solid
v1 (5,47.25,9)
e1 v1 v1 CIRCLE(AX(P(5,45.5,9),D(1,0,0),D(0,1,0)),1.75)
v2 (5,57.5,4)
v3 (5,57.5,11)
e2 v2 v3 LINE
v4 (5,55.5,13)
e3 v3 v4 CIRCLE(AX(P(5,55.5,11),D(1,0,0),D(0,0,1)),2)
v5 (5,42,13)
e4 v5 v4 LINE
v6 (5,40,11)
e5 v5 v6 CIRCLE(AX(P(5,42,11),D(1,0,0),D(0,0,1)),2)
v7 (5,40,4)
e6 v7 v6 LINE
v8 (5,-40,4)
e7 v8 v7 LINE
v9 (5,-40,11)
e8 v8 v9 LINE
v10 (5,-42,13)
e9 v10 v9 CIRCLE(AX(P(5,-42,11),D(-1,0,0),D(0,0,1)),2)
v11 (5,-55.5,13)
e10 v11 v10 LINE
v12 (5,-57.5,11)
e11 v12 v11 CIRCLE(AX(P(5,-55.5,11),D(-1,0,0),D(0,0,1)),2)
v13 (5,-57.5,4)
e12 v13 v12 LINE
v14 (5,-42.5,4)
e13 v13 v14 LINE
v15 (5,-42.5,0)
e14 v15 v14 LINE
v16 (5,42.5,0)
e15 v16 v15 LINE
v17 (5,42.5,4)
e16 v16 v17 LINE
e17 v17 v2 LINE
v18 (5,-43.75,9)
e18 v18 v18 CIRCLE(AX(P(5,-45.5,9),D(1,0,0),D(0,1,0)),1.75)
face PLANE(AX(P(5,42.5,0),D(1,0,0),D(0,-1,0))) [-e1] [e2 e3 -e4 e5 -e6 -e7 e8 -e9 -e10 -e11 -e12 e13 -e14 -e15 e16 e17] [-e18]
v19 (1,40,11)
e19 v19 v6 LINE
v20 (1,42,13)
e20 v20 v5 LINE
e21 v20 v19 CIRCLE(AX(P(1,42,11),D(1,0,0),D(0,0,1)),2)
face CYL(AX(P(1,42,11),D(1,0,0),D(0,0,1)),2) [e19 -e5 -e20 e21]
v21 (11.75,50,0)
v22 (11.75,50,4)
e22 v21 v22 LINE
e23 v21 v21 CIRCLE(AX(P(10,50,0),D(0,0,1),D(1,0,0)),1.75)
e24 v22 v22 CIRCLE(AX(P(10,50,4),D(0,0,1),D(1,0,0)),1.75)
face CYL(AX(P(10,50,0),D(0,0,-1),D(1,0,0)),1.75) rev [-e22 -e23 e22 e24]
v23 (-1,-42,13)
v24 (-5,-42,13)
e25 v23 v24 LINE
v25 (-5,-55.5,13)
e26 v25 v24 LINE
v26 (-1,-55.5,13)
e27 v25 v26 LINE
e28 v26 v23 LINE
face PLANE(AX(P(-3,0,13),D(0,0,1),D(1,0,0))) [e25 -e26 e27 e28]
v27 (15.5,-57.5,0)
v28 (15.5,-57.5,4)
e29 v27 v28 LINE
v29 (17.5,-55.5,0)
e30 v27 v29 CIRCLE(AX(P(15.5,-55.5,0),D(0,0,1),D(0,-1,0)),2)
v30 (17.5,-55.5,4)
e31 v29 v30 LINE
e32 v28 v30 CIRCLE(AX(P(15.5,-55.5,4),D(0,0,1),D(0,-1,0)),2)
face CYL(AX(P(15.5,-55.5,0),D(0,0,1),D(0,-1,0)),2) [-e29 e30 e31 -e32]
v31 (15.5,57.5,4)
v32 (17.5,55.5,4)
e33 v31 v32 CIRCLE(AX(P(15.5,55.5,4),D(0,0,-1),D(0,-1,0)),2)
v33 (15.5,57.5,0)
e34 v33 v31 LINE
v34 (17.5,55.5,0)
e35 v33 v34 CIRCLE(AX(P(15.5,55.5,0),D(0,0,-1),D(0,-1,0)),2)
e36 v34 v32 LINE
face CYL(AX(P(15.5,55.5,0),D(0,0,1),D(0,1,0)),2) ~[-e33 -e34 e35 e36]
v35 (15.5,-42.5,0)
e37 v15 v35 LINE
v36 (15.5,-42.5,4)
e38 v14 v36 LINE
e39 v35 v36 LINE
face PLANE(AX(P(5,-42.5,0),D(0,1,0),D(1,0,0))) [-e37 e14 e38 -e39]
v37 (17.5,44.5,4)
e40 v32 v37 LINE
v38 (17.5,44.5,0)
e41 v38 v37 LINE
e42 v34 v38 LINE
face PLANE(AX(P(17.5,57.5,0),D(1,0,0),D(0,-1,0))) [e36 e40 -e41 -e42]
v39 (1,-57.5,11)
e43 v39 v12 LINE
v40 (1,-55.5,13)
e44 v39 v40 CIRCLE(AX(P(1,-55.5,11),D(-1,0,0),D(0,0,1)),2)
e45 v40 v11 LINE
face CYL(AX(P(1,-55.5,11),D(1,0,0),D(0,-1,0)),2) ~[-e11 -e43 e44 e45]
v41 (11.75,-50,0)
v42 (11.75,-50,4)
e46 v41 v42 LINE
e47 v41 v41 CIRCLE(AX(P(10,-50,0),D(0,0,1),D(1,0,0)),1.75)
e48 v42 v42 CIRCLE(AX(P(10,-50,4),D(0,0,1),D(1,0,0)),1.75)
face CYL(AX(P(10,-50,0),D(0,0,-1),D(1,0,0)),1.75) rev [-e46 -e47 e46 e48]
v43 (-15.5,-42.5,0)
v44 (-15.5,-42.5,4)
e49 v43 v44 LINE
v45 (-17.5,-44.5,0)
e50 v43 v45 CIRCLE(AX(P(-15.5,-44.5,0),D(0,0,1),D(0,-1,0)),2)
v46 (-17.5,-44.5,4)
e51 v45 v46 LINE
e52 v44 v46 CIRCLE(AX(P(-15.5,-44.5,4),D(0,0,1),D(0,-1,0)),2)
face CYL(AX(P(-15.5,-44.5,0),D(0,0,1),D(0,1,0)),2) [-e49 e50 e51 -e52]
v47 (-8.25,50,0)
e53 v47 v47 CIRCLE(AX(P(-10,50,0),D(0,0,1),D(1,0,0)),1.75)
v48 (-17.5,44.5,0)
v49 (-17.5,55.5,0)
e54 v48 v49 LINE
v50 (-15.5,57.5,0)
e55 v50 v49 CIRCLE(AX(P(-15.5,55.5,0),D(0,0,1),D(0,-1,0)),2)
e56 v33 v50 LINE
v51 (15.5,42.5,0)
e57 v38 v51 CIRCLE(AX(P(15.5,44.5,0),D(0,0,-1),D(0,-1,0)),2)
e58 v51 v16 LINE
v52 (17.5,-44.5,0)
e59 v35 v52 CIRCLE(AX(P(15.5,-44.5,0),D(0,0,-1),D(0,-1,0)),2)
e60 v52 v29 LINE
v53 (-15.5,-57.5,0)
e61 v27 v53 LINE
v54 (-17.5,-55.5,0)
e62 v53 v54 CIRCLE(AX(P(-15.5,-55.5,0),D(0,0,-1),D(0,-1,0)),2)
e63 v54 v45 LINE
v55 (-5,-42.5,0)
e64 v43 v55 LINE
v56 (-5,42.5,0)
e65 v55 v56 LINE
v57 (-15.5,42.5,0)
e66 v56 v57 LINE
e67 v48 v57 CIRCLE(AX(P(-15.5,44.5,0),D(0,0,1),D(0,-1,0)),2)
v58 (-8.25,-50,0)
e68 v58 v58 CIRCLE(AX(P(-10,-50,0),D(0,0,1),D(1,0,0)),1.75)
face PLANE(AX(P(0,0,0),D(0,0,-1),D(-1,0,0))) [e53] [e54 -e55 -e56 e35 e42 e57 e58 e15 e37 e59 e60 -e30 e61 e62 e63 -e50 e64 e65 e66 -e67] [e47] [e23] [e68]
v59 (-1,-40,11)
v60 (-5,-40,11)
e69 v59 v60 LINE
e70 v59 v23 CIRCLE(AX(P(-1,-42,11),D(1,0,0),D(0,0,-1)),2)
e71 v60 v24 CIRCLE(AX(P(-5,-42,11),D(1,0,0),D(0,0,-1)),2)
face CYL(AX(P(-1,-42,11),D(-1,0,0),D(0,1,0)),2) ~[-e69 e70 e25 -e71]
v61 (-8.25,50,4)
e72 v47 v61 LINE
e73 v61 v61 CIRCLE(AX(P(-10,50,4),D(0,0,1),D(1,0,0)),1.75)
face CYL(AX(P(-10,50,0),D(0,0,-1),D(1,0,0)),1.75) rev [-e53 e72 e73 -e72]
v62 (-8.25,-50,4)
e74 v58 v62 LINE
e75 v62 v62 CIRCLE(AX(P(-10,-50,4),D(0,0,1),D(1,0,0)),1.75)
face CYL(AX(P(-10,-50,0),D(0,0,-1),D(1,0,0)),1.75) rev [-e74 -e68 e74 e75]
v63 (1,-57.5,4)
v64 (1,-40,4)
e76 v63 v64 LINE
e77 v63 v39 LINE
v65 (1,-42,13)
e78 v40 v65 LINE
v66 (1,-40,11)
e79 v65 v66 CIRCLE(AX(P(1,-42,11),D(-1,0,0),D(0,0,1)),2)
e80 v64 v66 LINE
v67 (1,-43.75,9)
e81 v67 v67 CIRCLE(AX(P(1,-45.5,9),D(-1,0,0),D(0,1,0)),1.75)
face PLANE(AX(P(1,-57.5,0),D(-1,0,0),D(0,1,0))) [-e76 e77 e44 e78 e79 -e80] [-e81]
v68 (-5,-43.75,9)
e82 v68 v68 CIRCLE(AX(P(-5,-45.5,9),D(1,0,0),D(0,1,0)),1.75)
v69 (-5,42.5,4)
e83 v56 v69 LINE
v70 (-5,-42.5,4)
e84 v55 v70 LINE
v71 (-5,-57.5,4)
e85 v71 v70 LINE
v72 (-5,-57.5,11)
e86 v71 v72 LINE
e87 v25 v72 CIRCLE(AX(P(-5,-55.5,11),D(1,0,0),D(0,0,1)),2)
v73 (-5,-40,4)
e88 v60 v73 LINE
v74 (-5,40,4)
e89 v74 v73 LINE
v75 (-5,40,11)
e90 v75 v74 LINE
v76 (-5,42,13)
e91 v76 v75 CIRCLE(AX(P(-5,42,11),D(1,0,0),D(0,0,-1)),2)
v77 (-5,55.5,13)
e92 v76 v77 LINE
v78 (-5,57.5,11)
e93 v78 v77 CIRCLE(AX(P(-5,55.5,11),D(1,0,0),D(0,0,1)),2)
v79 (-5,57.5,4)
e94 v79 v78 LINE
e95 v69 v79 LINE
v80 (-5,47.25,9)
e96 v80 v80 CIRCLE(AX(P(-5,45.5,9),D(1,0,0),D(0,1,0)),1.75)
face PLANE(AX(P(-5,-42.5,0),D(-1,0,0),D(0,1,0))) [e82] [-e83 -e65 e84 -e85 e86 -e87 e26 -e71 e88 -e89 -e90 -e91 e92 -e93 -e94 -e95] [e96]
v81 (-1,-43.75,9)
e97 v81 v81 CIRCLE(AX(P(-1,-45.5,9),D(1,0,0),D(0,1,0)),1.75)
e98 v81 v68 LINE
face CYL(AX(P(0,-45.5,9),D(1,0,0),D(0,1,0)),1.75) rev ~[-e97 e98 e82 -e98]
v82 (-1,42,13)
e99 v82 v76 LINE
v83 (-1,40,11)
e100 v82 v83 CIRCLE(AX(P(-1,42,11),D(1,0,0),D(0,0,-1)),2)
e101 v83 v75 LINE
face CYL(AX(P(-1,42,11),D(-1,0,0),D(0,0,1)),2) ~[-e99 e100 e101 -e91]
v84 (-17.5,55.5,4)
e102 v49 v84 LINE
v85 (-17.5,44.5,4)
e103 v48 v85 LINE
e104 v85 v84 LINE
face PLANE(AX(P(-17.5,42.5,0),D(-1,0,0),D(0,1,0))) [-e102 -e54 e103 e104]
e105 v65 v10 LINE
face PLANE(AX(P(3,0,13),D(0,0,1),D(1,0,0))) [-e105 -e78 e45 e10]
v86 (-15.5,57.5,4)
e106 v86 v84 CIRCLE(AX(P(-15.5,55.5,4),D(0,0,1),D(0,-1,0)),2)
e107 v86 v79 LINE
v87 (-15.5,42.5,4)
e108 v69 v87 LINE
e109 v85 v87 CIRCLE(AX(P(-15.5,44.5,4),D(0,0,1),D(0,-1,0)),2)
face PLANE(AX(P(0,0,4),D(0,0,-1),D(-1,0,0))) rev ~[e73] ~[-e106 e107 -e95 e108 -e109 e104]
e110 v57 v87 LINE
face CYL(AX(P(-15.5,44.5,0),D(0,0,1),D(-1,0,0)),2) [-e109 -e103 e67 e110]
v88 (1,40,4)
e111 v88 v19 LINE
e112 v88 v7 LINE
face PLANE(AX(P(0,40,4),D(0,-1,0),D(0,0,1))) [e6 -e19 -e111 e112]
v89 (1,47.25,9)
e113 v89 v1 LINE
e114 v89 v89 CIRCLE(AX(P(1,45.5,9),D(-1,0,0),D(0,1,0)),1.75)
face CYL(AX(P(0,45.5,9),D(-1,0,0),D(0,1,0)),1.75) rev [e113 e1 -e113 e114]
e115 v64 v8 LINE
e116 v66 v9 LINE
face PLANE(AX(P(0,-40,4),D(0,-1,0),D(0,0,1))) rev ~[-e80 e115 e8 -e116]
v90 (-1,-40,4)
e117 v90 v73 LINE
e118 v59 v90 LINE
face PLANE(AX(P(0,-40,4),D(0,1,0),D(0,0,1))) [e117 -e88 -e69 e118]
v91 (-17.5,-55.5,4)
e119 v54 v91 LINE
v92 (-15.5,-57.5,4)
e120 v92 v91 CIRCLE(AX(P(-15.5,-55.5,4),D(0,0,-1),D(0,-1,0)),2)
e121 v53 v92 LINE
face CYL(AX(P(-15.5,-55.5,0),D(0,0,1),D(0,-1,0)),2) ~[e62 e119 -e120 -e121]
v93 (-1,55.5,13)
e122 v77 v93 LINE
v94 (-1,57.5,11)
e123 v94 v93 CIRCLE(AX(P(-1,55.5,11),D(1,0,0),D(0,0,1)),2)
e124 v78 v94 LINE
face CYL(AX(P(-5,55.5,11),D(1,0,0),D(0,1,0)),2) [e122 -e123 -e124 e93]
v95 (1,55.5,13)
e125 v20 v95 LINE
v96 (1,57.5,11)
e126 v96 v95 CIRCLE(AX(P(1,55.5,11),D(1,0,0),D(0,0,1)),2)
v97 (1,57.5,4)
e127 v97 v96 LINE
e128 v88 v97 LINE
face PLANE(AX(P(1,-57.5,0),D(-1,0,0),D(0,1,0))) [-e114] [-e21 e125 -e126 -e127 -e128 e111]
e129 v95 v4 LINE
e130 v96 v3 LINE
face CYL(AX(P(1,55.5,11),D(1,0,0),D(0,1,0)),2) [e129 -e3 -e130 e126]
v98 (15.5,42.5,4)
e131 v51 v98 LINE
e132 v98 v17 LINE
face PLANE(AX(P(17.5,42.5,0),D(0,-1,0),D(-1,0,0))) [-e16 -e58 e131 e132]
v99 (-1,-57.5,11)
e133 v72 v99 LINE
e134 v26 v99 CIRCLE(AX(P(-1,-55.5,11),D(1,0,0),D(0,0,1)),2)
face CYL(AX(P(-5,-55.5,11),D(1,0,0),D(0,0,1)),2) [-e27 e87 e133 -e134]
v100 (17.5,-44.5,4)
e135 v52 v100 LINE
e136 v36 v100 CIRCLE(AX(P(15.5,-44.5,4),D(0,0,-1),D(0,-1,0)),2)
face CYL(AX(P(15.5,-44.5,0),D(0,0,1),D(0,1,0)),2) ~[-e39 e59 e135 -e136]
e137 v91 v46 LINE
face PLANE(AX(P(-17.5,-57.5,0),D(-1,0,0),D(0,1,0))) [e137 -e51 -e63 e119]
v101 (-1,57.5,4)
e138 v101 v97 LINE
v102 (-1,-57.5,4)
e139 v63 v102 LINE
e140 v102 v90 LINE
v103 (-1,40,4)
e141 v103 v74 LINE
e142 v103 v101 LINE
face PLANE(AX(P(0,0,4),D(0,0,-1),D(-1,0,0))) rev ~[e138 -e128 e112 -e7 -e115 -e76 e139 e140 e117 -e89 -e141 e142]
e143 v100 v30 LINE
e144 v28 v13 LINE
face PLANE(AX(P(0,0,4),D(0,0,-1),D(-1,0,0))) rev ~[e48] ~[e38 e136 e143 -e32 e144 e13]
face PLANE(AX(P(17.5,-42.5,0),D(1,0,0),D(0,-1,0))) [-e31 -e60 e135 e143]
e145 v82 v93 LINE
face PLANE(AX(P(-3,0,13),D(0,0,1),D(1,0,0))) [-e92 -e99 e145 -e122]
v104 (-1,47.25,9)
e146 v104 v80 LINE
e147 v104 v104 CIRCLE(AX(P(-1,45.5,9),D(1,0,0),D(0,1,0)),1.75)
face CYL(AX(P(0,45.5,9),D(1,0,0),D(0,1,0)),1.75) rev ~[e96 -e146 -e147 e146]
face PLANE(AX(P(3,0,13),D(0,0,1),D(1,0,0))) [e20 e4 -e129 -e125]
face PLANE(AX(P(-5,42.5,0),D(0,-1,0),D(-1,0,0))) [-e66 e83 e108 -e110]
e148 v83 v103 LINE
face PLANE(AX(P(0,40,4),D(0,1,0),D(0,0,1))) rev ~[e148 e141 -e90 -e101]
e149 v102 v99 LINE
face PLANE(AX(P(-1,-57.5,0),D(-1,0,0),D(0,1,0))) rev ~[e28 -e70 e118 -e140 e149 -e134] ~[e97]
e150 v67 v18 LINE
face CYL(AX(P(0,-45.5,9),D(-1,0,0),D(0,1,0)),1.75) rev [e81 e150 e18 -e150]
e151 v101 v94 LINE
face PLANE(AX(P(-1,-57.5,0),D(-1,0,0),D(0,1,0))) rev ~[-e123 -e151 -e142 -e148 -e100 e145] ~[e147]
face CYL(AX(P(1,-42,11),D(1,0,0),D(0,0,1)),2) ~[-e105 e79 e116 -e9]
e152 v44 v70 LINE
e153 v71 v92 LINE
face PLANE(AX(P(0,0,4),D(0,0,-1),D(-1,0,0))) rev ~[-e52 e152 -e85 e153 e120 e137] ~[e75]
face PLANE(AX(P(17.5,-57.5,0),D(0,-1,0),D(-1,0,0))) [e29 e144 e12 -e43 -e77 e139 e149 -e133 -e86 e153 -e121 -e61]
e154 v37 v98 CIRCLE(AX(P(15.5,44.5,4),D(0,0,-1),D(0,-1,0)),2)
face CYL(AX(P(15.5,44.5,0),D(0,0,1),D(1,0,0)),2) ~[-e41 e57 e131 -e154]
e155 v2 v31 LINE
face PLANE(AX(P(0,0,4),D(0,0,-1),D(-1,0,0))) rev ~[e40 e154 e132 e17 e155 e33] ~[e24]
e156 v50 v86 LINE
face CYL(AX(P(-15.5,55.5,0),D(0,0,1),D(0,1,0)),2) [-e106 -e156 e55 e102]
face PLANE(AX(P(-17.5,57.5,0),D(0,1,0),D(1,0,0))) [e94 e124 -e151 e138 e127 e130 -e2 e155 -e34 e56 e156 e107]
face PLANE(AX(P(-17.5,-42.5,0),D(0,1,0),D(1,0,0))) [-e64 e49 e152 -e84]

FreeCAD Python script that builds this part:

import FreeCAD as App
import Part
import Sketcher
from FreeCAD import Vector
Q = App.Units.Quantity


def edges_at(feature, points):
    """Names of the edges that pass closest to the given points."""
    edges = feature.Shape.Edges
    near = lambda p: min(range(len(edges)), key=lambda i: edges[i].distToShape(Part.Vertex(*p))[0])
    return sorted({f"Edge{near(p) + 1}" for p in points})

doc = App.newDocument("Part")
params = doc.addObject("Spreadsheet::Sheet", "Params")
for row, (alias, value) in enumerate([
    ("sketch1_diameter", "3.5 mm"),
    ("sketch1_width", "35 mm"),
    ("sketch1_height", "15 mm"),
    ("sketch1_height2", "85 mm"),
    ("sketch1_width2", "12.5 mm"),
    ("pad1_length", "4 mm"),
    ("sketch2_width", "4 mm"),
    ("sketch2_height", "115 mm"),
    ("pad2_length", "13 mm"),
    ("sketch3_diameter", "3.5 mm"),
    ("sketch3_width", "80 mm"),
    ("sketch3_height", "9 mm"),
    ("fillet_radius", "2 mm"),
], start=1):
    params.set(f"A{row}", alias)
    params.set(f"B{row}", "=" + value)
    params.setAlias(f"B{row}", alias)

body = doc.addObject("PartDesign::Body", "Body")

sketch1 = doc.addObject("Sketcher::SketchObject", "Sketch")
body.addObject(sketch1)
sketch1.AttachmentSupport = (doc.XY_Plane, [""])
sketch1.MapMode = "FlatFace"
sketch1.addGeometry(Part.LineSegment(Vector(17.5, 57.5, 0), Vector(-17.5, 57.5, 0)), False)
sketch1.addGeometry(Part.LineSegment(Vector(-17.5, 57.5, 0), Vector(-17.5, 42.5, 0)), False)
sketch1.addGeometry(Part.LineSegment(Vector(-17.5, 42.5, 0), Vector(-5, 42.5, 0)), False)
sketch1.addGeometry(Part.LineSegment(Vector(-5, 42.5, 0), Vector(-5, -42.5, 0)), False)
sketch1.addGeometry(Part.LineSegment(Vector(-5, -42.5, 0), Vector(-17.5, -42.5, 0)), False)
sketch1.addGeometry(Part.LineSegment(Vector(-17.5, -42.5, 0), Vector(-17.5, -57.5, 0)), False)
sketch1.addGeometry(Part.LineSegment(Vector(-17.5, -57.5, 0), Vector(17.5, -57.5, 0)), False)
sketch1.addGeometry(Part.LineSegment(Vector(17.5, -57.5, 0), Vector(17.5, -42.5, 0)), False)
sketch1.addGeometry(Part.LineSegment(Vector(17.5, -42.5, 0), Vector(5, -42.5, 0)), False)
sketch1.addGeometry(Part.LineSegment(Vector(5, -42.5, 0), Vector(5, 42.5, 0)), False)
sketch1.addGeometry(Part.LineSegment(Vector(5, 42.5, 0), Vector(17.5, 42.5, 0)), False)
sketch1.addGeometry(Part.LineSegment(Vector(17.5, 42.5, 0), Vector(17.5, 57.5, 0)), False)
sketch1.addGeometry(Part.Circle(Vector(10, -50, 0), Vector(0, 0, 1), 1.8), False)
sketch1.addGeometry(Part.Circle(Vector(-10, -50, 0), Vector(0, 0, 1), 1.8), False)
sketch1.addGeometry(Part.Circle(Vector(10, 50, 0), Vector(0, 0, 1), 1.8), False)
sketch1.addGeometry(Part.Circle(Vector(-10, 50, 0), Vector(0, 0, 1), 1.8), False)
sketch1.addConstraint(Sketcher.Constraint("Coincident", 0, 2, 1, 1))
sketch1.addConstraint(Sketcher.Constraint("Coincident", 1, 2, 2, 1))
sketch1.addConstraint(Sketcher.Constraint("Coincident", 2, 2, 3, 1))
sketch1.addConstraint(Sketcher.Constraint("Coincident", 3, 2, 4, 1))
sketch1.addConstraint(Sketcher.Constraint("Coincident", 4, 2, 5, 1))
sketch1.addConstraint(Sketcher.Constraint("Coincident", 5, 2, 6, 1))
sketch1.addConstraint(Sketcher.Constraint("Coincident", 6, 2, 7, 1))
sketch1.addConstraint(Sketcher.Constraint("Coincident", 7, 2, 8, 1))
sketch1.addConstraint(Sketcher.Constraint("Coincident", 8, 2, 9, 1))
sketch1.addConstraint(Sketcher.Constraint("Coincident", 9, 2, 10, 1))
sketch1.addConstraint(Sketcher.Constraint("Coincident", 10, 2, 11, 1))
sketch1.addConstraint(Sketcher.Constraint("Coincident", 11, 2, 0, 1))
sketch1.addConstraint(Sketcher.Constraint("Horizontal", 0))
sketch1.addConstraint(Sketcher.Constraint("Vertical", 1))
sketch1.addConstraint(Sketcher.Constraint("Horizontal", 2))
sketch1.addConstraint(Sketcher.Constraint("Vertical", 3))
sketch1.addConstraint(Sketcher.Constraint("Horizontal", 4))
sketch1.addConstraint(Sketcher.Constraint("Vertical", 5))
sketch1.addConstraint(Sketcher.Constraint("Horizontal", 6))
sketch1.addConstraint(Sketcher.Constraint("Vertical", 7))
sketch1.addConstraint(Sketcher.Constraint("Horizontal", 8))
sketch1.addConstraint(Sketcher.Constraint("Vertical", 9))
sketch1.addConstraint(Sketcher.Constraint("Horizontal", 10))
sketch1.addConstraint(Sketcher.Constraint("Vertical", 11))
sketch1.addConstraint(Sketcher.Constraint("Equal", 12, 13))
sketch1.addConstraint(Sketcher.Constraint("Equal", 13, 14))
sketch1.addConstraint(Sketcher.Constraint("Equal", 14, 15))
sketch1.addConstraint(Sketcher.Constraint("Symmetric", 13, 3, 14, 3, -1, 1))
sketch1.addConstraint(Sketcher.Constraint("Symmetric", 12, 3, 15, 3, -1, 1))
sketch1.addConstraint(Sketcher.Constraint("Symmetric", 0, 2, 6, 2, -1, 1))
sketch1.addConstraint(Sketcher.Constraint("Symmetric", 2, 2, 8, 2, -1, 1))
sketch1.addConstraint(Sketcher.Constraint("Symmetric", 4, 2, 10, 2, -1, 1))
sketch1.addConstraint(Sketcher.Constraint("Symmetric", 12, 3, 13, 3, -2))
sketch1.addConstraint(Sketcher.Constraint("Symmetric", 4, 2, 7, 2, -2))
sketch1.addConstraint(Sketcher.Constraint("Diameter", 12, Q("3.5 mm")))
sketch1.addConstraint(Sketcher.Constraint("DistanceX", 0, 2, 0, 1, Q("35 mm")))
sketch1.addConstraint(Sketcher.Constraint("DistanceY", 1, 2, 1, 1, Q("15 mm")))
sketch1.addConstraint(Sketcher.Constraint("DistanceY", 3, 2, 3, 1, Q("85 mm")))
sketch1.addConstraint(Sketcher.Constraint("DistanceX", 2, 1, 2, 2, Q("12.5 mm")))
sketch1.addConstraint(Sketcher.Constraint("DistanceX", -1, 1, 12, 3, Q("10 mm")))
sketch1.addConstraint(Sketcher.Constraint("DistanceY", 12, 3, -1, 1, Q("50 mm")))
sketch1.setExpression("Constraints[34]", "Params.sketch1_diameter")
sketch1.setExpression("Constraints[35]", "Params.sketch1_width")
sketch1.setExpression("Constraints[36]", "Params.sketch1_height")
sketch1.setExpression("Constraints[37]", "Params.sketch1_height2")
sketch1.setExpression("Constraints[38]", "Params.sketch1_width2")
pad1 = doc.addObject("PartDesign::Pad", "Pad")
body.addObject(pad1)
pad1.Profile = sketch1
pad1.setExpression("Length", "Params.pad1_length")

sketch2 = doc.addObject("Sketcher::SketchObject", "Sketch001")
body.addObject(sketch2)
sketch2.AttachmentSupport = (doc.XY_Plane, [""])
sketch2.MapMode = "FlatFace"
sketch2.addGeometry(Part.LineSegment(Vector(-5, 57.5, 0), Vector(-5, -57.5, 0)), False)
sketch2.addGeometry(Part.LineSegment(Vector(-5, -57.5, 0), Vector(-1, -57.5, 0)), False)
sketch2.addGeometry(Part.LineSegment(Vector(-1, -57.5, 0), Vector(-1, 57.5, 0)), False)
sketch2.addGeometry(Part.LineSegment(Vector(-1, 57.5, 0), Vector(-5, 57.5, 0)), False)
sketch2.addGeometry(Part.LineSegment(Vector(1, 57.5, 0), Vector(1, -57.5, 0)), False)
sketch2.addGeometry(Part.LineSegment(Vector(1, -57.5, 0), Vector(5, -57.5, 0)), False)
sketch2.addGeometry(Part.LineSegment(Vector(5, -57.5, 0), Vector(5, 57.5, 0)), False)
sketch2.addGeometry(Part.LineSegment(Vector(5, 57.5, 0), Vector(1, 57.5, 0)), False)
sketch2.addConstraint(Sketcher.Constraint("Coincident", 0, 2, 1, 1))
sketch2.addConstraint(Sketcher.Constraint("Coincident", 1, 2, 2, 1))
sketch2.addConstraint(Sketcher.Constraint("Coincident", 2, 2, 3, 1))
sketch2.addConstraint(Sketcher.Constraint("Coincident", 3, 2, 0, 1))
sketch2.addConstraint(Sketcher.Constraint("Coincident", 4, 2, 5, 1))
sketch2.addConstraint(Sketcher.Constraint("Coincident", 5, 2, 6, 1))
sketch2.addConstraint(Sketcher.Constraint("Coincident", 6, 2, 7, 1))
sketch2.addConstraint(Sketcher.Constraint("Coincident", 7, 2, 4, 1))
sketch2.addConstraint(Sketcher.Constraint("Vertical", 0))
sketch2.addConstraint(Sketcher.Constraint("Horizontal", 1))
sketch2.addConstraint(Sketcher.Constraint("Vertical", 2))
sketch2.addConstraint(Sketcher.Constraint("Horizontal", 3))
sketch2.addConstraint(Sketcher.Constraint("Vertical", 4))
sketch2.addConstraint(Sketcher.Constraint("Horizontal", 5))
sketch2.addConstraint(Sketcher.Constraint("Vertical", 6))
sketch2.addConstraint(Sketcher.Constraint("Horizontal", 7))
sketch2.addConstraint(Sketcher.Constraint("Symmetric", 2, 2, 4, 2, -1, 1))
sketch2.addConstraint(Sketcher.Constraint("Symmetric", 0, 2, 6, 2, -1, 1))
sketch2.addConstraint(Sketcher.Constraint("Horizontal", 1, 2, 4, 2))
sketch2.addConstraint(Sketcher.Constraint("DistanceX", 1, 1, 1, 2, Q("4 mm")))
sketch2.addConstraint(Sketcher.Constraint("DistanceY", 0, 2, 0, 1, Q("115 mm")))
sketch2.addConstraint(Sketcher.Constraint("DistanceX", 0, 2, -1, 1, Q("5 mm")))
sketch2.setExpression("Constraints[19]", "Params.sketch2_width")
sketch2.setExpression("Constraints[20]", "Params.sketch2_height")
pad2 = doc.addObject("PartDesign::Pad", "Pad001")
body.addObject(pad2)
pad2.Profile = sketch2
pad2.setExpression("Length", "Params.pad2_length")

sketch3 = doc.addObject("Sketcher::SketchObject", "Sketch002")
body.addObject(sketch3)
sketch3.AttachmentSupport = (doc.YZ_Plane, [""])
sketch3.MapMode = "FlatFace"
sketch3.addGeometry(Part.Circle(Vector(45.5, 9, 0), Vector(0, 0, 1), 1.8), False)
sketch3.addGeometry(Part.Circle(Vector(-45.5, 9, 0), Vector(0, 0, 1), 1.8), False)
sketch3.addGeometry(Part.LineSegment(Vector(-40, 13, 0), Vector(-40, 4, 0)), False)
sketch3.addGeometry(Part.LineSegment(Vector(-40, 4, 0), Vector(40, 4, 0)), False)
sketch3.addGeometry(Part.LineSegment(Vector(40, 4, 0), Vector(40, 13, 0)), False)
sketch3.addGeometry(Part.LineSegment(Vector(40, 13, 0), Vector(-40, 13, 0)), False)
sketch3.addConstraint(Sketcher.Constraint("Coincident", 2, 2, 3, 1))
sketch3.addConstraint(Sketcher.Constraint("Coincident", 3, 2, 4, 1))
sketch3.addConstraint(Sketcher.Constraint("Coincident", 4, 2, 5, 1))
sketch3.addConstraint(Sketcher.Constraint("Coincident", 5, 2, 2, 1))
sketch3.addConstraint(Sketcher.Constraint("Vertical", 2))
sketch3.addConstraint(Sketcher.Constraint("Horizontal", 3))
sketch3.addConstraint(Sketcher.Constraint("Vertical", 4))
sketch3.addConstraint(Sketcher.Constraint("Horizontal", 5))
sketch3.addConstraint(Sketcher.Constraint("Equal", 0, 1))
sketch3.addConstraint(Sketcher.Constraint("Symmetric", 0, 3, 1, 3, -2))
sketch3.addConstraint(Sketcher.Constraint("Diameter", 0, Q("3.5 mm")))
sketch3.addConstraint(Sketcher.Constraint("DistanceX", 3, 1, 3, 2, Q("80 mm")))
sketch3.addConstraint(Sketcher.Constraint("DistanceY", 2, 2, 2, 1, Q("9 mm")))
sketch3.addConstraint(Sketcher.Constraint("DistanceY", -1, 1, 0, 3, Q("9 mm")))
sketch3.addConstraint(Sketcher.Constraint("DistanceX", 2, 2, -1, 1, Q("40 mm")))
sketch3.addConstraint(Sketcher.Constraint("DistanceY", -1, 1, 2, 2, Q("4 mm")))
sketch3.addConstraint(Sketcher.Constraint("DistanceX", 1, 3, 0, 3, Q("91 mm")))
sketch3.setExpression("Constraints[10]", "Params.sketch3_diameter")
sketch3.setExpression("Constraints[11]", "Params.sketch3_width")
sketch3.setExpression("Constraints[12]", "Params.sketch3_height")
pocket1 = doc.addObject("PartDesign::Pocket", "Pocket")
body.addObject(pocket1)
pocket1.Profile = sketch3
pocket1.Type = "ThroughAll"
pocket1.Midplane = True
doc.recompute()

fillet = doc.addObject("PartDesign::Fillet", "Fillet")
body.addObject(fillet)
fillet.Base = (pocket1, edges_at(pocket1, [
    (-3, -40, 13),
    (3, -40, 13),
    (-3, 40, 13),
    (3, 40, 13),
    (-3, 57.5, 13),
    (3, 57.5, 13),
    (17.5, 57.5, 2),
    (17.5, 42.5, 2),
    (3, -57.5, 13),
    (-3, -57.5, 13),
    (17.5, -42.5, 2),
    (17.5, -57.5, 2),
    (-17.5, -42.5, 2),
    (-17.5, -57.5, 2),
    (-17.5, 42.5, 2),
    (-17.5, 57.5, 2),
]))
fillet.setExpression("Radius", "Params.fillet_radius")

doc.recompute()
